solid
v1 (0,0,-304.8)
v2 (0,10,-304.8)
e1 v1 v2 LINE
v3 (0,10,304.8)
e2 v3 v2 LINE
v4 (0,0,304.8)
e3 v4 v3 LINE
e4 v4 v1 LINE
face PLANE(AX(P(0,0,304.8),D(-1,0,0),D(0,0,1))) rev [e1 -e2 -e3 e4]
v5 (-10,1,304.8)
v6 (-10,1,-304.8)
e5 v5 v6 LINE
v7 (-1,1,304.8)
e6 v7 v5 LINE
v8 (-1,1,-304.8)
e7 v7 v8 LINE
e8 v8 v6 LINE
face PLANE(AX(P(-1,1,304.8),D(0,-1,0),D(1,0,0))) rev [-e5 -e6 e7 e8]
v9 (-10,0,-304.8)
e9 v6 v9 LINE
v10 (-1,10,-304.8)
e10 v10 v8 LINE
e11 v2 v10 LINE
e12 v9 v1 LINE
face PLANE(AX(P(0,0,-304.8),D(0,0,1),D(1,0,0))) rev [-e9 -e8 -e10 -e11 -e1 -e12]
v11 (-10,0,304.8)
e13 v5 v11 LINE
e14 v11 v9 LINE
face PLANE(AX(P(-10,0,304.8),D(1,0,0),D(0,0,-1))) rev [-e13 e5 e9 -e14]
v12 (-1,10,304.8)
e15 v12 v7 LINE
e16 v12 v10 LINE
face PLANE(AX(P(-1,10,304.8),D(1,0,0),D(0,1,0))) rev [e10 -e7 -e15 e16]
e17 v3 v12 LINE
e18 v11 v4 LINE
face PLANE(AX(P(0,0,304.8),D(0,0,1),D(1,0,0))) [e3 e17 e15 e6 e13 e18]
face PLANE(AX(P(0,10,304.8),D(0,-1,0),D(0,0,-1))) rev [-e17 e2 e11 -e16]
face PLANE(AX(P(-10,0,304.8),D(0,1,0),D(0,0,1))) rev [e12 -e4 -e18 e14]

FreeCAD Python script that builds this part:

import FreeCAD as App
import Part
import Sketcher
from FreeCAD import Vector
Q = App.Units.Quantity

doc = App.newDocument("Part")
body = doc.addObject("PartDesign::Body", "Body")

sketch1 = body.newObject("Sketcher::SketchObject", "Sketch")
sketch1.AttachmentSupport = (doc.getObject("XY_Plane"), [""])
sketch1.MapMode = "FlatFace"
sketch1.addGeometry([
    Part.LineSegment(Vector(-10, 0, 0), Vector(0, 0, 0)),
    Part.LineSegment(Vector(0, 0, 0), Vector(0, 10, 0)),
    Part.LineSegment(Vector(0, 10, 0), Vector(-1, 10, 0)),
    Part.LineSegment(Vector(-1, 10, 0), Vector(-1, 1, 0)),
    Part.LineSegment(Vector(-1, 1, 0), Vector(-10, 1, 0)),
    Part.LineSegment(Vector(-10, 1, 0), Vector(-10, 0, 0)),
], False)
sketch1.addConstraint([
    Sketcher.Constraint("Coincident", 0, 2, 1, 1),
    Sketcher.Constraint("Coincident", 1, 2, 2, 1),
    Sketcher.Constraint("Coincident", 2, 2, 3, 1),
    Sketcher.Constraint("Coincident", 3, 2, 4, 1),
    Sketcher.Constraint("Coincident", 4, 2, 5, 1),
    Sketcher.Constraint("Coincident", 5, 2, 0, 1),
    Sketcher.Constraint("Horizontal", 0),
    Sketcher.Constraint("Vertical", 1),
    Sketcher.Constraint("Horizontal", 2),
    Sketcher.Constraint("Vertical", 3),
    Sketcher.Constraint("Horizontal", 4),
    Sketcher.Constraint("Vertical", 5),
    Sketcher.Constraint("Coincident", 0, 2, -1, 1),
    Sketcher.Constraint("Equal", 0, 1),
    Sketcher.Constraint("Equal", 4, 3),
    Sketcher.Constraint("DistanceX", 0, 1, 0, 2, Q("10 mm")),
    Sketcher.Constraint("DistanceX", 2, 2, 2, 1, Q("1 mm")),
])
pad1 = body.newObject("PartDesign::Pad", "Pad")
pad1.Profile = sketch1
pad1.Type = "TwoLengths"
pad1.Length = 304.8
pad1.Length2 = 304.8

doc.recompute()
